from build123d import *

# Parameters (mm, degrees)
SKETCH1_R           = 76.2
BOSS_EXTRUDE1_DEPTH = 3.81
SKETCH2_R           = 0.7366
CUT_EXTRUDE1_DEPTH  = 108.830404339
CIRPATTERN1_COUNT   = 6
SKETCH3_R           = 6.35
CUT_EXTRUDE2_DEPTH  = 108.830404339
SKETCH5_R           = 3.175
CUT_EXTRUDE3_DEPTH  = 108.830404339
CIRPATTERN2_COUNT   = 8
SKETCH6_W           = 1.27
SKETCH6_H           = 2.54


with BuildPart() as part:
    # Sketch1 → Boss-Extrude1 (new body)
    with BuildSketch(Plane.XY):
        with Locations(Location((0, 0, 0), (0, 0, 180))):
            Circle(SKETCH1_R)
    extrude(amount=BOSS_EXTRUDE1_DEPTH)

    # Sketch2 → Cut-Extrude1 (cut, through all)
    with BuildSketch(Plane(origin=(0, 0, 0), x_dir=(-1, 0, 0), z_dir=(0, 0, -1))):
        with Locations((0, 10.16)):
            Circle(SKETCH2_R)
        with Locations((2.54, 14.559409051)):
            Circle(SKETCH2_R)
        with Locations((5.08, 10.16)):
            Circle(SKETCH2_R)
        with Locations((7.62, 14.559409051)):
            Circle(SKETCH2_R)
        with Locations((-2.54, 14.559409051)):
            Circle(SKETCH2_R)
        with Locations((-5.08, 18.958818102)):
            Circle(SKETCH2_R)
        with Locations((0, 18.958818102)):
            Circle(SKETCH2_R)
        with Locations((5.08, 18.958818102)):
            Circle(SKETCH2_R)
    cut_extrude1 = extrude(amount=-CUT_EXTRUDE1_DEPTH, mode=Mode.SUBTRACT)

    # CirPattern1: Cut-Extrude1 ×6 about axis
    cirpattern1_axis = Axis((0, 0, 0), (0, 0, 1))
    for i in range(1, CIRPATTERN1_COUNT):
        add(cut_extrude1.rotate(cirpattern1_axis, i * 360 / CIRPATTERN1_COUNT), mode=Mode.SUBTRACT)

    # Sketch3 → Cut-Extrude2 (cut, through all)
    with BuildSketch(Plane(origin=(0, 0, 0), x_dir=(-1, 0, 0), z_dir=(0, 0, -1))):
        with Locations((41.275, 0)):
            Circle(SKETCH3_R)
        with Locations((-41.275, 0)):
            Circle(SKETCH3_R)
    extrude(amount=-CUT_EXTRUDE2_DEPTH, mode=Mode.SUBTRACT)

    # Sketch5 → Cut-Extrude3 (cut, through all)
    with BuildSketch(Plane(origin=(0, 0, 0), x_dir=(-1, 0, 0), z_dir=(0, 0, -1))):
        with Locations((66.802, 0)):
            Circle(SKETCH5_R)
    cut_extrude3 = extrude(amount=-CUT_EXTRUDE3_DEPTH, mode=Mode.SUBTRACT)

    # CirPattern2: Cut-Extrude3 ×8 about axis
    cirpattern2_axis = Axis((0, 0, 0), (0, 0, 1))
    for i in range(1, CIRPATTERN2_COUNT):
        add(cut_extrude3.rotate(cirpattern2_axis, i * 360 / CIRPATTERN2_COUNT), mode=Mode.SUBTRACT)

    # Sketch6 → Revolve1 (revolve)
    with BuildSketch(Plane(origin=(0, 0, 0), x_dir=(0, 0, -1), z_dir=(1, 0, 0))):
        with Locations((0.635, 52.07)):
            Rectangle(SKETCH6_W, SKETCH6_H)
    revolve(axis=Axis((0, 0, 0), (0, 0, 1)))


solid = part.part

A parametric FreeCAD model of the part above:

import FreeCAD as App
import Part
import Sketcher
Q = App.Units.Quantity


def add_polygon(sketch, points):
    """Adds a closed chain of lines whose ends are joined by coincident constraints."""
    first, n = sketch.GeometryCount, len(points)
    for a, b in zip(points, points[1:] + points[:1]):
        sketch.addGeometry(Part.LineSegment(App.Vector(*a, 0), App.Vector(*b, 0)), False)
    for i in range(n):
        sketch.addConstraint(Sketcher.Constraint("Coincident", first + i, 2, first + (i + 1) % n, 1))

doc = App.newDocument("Part")
body = doc.addObject("PartDesign::Body", "Body")

sketch1 = doc.addObject("Sketcher::SketchObject", "Sketch")
body.addObject(sketch1)
sketch1.AttachmentSupport = (doc.XY_Plane, [""])
sketch1.MapMode = "FlatFace"
sketch1.addGeometry(Part.Circle(App.Vector(0, 0, 0), App.Vector(0, 0, 1), 76), False)
sketch1.addConstraint(Sketcher.Constraint("Coincident", 0, 3, -1, 1))
sketch1.addConstraint(Sketcher.Constraint("Diameter", 0, Q("6 in")))
pad1 = doc.addObject("PartDesign::Pad", "Pad")
body.addObject(pad1)
pad1.Profile = sketch1
pad1.Length = Q("0.15 in")

sketch2 = doc.addObject("Sketcher::SketchObject", "Sketch001")
body.addObject(sketch2)
sketch2.AttachmentSupport = (doc.XY_Plane, [""])
sketch2.MapMode = "FlatFace"
sketch2.addGeometry(Part.Circle(App.Vector(0, 10.2, 0), App.Vector(0, 0, 1), 0.7), False)
sketch2.addGeometry(Part.Circle(App.Vector(-2.5, 14.6, 0), App.Vector(0, 0, 1), 0.7), False)
sketch2.addGeometry(Part.Circle(App.Vector(-5.1, 10.2, 0), App.Vector(0, 0, 1), 0.7), False)
sketch2.addGeometry(Part.Circle(App.Vector(-7.6, 14.6, 0), App.Vector(0, 0, 1), 0.7), False)
sketch2.addGeometry(Part.Circle(App.Vector(2.5, 14.6, 0), App.Vector(0, 0, 1), 0.7), False)
sketch2.addGeometry(Part.Circle(App.Vector(5.1, 19, 0), App.Vector(0, 0, 1), 0.7), False)
sketch2.addGeometry(Part.Circle(App.Vector(0, 19, 0), App.Vector(0, 0, 1), 0.7), False)
sketch2.addGeometry(Part.Circle(App.Vector(-5.1, 19, 0), App.Vector(0, 0, 1), 0.7), False)
sketch2.addConstraint(Sketcher.Constraint("Equal", 0, 1))
sketch2.addConstraint(Sketcher.Constraint("Equal", 1, 2))
sketch2.addConstraint(Sketcher.Constraint("Equal", 2, 3))
sketch2.addConstraint(Sketcher.Constraint("Equal", 3, 4))
sketch2.addConstraint(Sketcher.Constraint("Equal", 4, 5))
sketch2.addConstraint(Sketcher.Constraint("Equal", 5, 6))
sketch2.addConstraint(Sketcher.Constraint("Equal", 6, 7))
sketch2.addConstraint(Sketcher.Constraint("Symmetric", 1, 3, 4, 3, -2))
sketch2.addConstraint(Sketcher.Constraint("Symmetric", 5, 3, 7, 3, -2))
sketch2.addConstraint(Sketcher.Constraint("PointOnObject", 0, 3, -2))
sketch2.addConstraint(Sketcher.Constraint("PointOnObject", 6, 3, -2))
sketch2.addConstraint(Sketcher.Constraint("Horizontal", 0, 3, 2, 3))
sketch2.addConstraint(Sketcher.Constraint("Horizontal", 1, 3, 3, 3))
sketch2.addConstraint(Sketcher.Constraint("Horizontal", 5, 3, 6, 3))
sketch2.addConstraint(Sketcher.Constraint("Vertical", 2, 3, 7, 3))
sketch2.addConstraint(Sketcher.Constraint("Diameter", 0, Q("0.058 in")))
sketch2.addConstraint(Sketcher.Constraint("DistanceY", -1, 1, 0, 3, Q("0.4 in")))
sketch2.addConstraint(Sketcher.Constraint("DistanceX", 1, 3, -1, 1, Q("0.1 in")))
sketch2.addConstraint(Sketcher.Constraint("DistanceX", 2, 3, -1, 1, Q("0.2 in")))
sketch2.addConstraint(Sketcher.Constraint("DistanceX", 3, 3, -1, 1, Q("0.3 in")))
sketch2.addConstraint(Sketcher.Constraint("DistanceY", -1, 1, 1, 3, Q("14.559409 mm")))
sketch2.addConstraint(Sketcher.Constraint("DistanceY", -1, 1, 5, 3, Q("18.958818 mm")))
pocket1 = doc.addObject("PartDesign::Pocket", "Pocket")
body.addObject(pocket1)
pocket1.Profile = sketch2
pocket1.Type = "ThroughAll"
pocket1.Reversed = True
doc.recompute()

polarpattern = doc.addObject("PartDesign::PolarPattern", "PolarPattern")
body.addObject(polarpattern)
polarpattern.Originals = [pocket1]
polarpattern.Axis = (doc.Z_Axis, [""])
polarpattern.Angle = 360
polarpattern.Occurrences = 6
body.Tip = polarpattern

sketch3 = doc.addObject("Sketcher::SketchObject", "Sketch002")
body.addObject(sketch3)
sketch3.AttachmentSupport = (doc.XY_Plane, [""])
sketch3.MapMode = "FlatFace"
sketch3.addGeometry(Part.Circle(App.Vector(-41, 0, 0), App.Vector(0, 0, 1), 6), False)
sketch3.addGeometry(Part.Circle(App.Vector(41, 0, 0), App.Vector(0, 0, 1), 6), False)
sketch3.addConstraint(Sketcher.Constraint("Equal", 0, 1))
sketch3.addConstraint(Sketcher.Constraint("Symmetric", 0, 3, 1, 3, -1, 1))
sketch3.addConstraint(Sketcher.Constraint("PointOnObject", 0, 3, -1))
sketch3.addConstraint(Sketcher.Constraint("Diameter", 0, Q("0.5 in")))
sketch3.addConstraint(Sketcher.Constraint("DistanceX", 0, 3, 1, 3, Q("3.25 in")))
pocket2 = doc.addObject("PartDesign::Pocket", "Pocket001")
body.addObject(pocket2)
pocket2.Profile = sketch3
pocket2.Type = "ThroughAll"
pocket2.Reversed = True

sketch4 = doc.addObject("Sketcher::SketchObject", "Sketch003")
body.addObject(sketch4)
sketch4.AttachmentSupport = (doc.XY_Plane, [""])
sketch4.MapMode = "FlatFace"
sketch4.addGeometry(Part.Circle(App.Vector(-66.8, 0, 0), App.Vector(0, 0, 1), 3.2), False)
sketch4.addConstraint(Sketcher.Constraint("PointOnObject", 0, 3, -1))
sketch4.addConstraint(Sketcher.Constraint("Diameter", 0, Q("0.25 in")))
sketch4.addConstraint(Sketcher.Constraint("DistanceX", 0, 3, -1, 1, Q("2.63 in")))
pocket3 = doc.addObject("PartDesign::Pocket", "Pocket002")
body.addObject(pocket3)
pocket3.Profile = sketch4
pocket3.Type = "ThroughAll"
pocket3.Reversed = True
doc.recompute()

polarpattern2 = doc.addObject("PartDesign::PolarPattern", "PolarPattern001")
body.addObject(polarpattern2)
polarpattern2.Originals = [pocket3]
polarpattern2.Axis = (doc.Z_Axis, [""])
polarpattern2.Angle = 360
polarpattern2.Occurrences = 8
body.Tip = polarpattern2

sketch5 = doc.addObject("Sketcher::SketchObject", "Sketch004")
body.addObject(sketch5)
sketch5.AttachmentSupport = (doc.YZ_Plane, [""])
sketch5.MapMode = "FlatFace"
add_polygon(sketch5, [(53.3, 0), (50.8, 0), (50.8, -1.3), (53.3, -1.3)])
sketch5.addConstraint(Sketcher.Constraint("Horizontal", 0))
sketch5.addConstraint(Sketcher.Constraint("Vertical", 1))
sketch5.addConstraint(Sketcher.Constraint("Horizontal", 2))
sketch5.addConstraint(Sketcher.Constraint("Vertical", 3))
sketch5.addConstraint(Sketcher.Constraint("PointOnObject", 0, 2, -1))
sketch5.addConstraint(Sketcher.Constraint("DistanceX", 0, 2, 0, 1, Q("0.1 in")))
sketch5.addConstraint(Sketcher.Constraint("DistanceX", -1, 1, 0, 2, Q("2 in")))
sketch5.addConstraint(Sketcher.Constraint("DistanceY", 1, 2, 1, 1, Q("0.05 in")))
revolution = doc.addObject("PartDesign::Revolution", "Revolution")
body.addObject(revolution)
revolution.Profile = sketch5
revolution.ReferenceAxis = (sketch5, ["V_Axis"])
revolution.Angle = 360

doc.recompute()
